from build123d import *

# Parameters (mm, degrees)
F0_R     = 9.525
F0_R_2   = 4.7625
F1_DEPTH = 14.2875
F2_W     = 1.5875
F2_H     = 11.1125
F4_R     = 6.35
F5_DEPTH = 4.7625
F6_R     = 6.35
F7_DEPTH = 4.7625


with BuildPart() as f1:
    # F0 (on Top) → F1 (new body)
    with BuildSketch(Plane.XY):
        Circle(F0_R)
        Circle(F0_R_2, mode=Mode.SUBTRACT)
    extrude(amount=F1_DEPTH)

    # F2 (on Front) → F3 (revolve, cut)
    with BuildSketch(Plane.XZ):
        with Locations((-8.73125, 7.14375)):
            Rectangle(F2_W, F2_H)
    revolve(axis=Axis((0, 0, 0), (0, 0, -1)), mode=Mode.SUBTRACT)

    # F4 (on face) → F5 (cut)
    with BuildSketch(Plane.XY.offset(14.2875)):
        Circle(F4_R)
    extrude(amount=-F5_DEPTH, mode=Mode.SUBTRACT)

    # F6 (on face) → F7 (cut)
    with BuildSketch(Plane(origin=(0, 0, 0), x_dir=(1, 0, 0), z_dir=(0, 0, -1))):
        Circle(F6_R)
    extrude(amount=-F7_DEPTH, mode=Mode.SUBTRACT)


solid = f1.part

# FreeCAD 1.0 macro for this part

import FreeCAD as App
import Part
import Sketcher
from FreeCAD import Vector
Q = App.Units.Quantity

doc = App.newDocument("Part")
body = doc.addObject("PartDesign::Body", "Body")

sketch1 = body.newObject("Sketcher::SketchObject", "Sketch")
sketch1.AttachmentSupport = (doc.getObject("XY_Plane"), [""])
sketch1.MapMode = "FlatFace"
sketch1.addGeometry([
    Part.Circle(Vector(0, 0, 0), Vector(0, 0, 1), 9.5),
    Part.Circle(Vector(0, 0, 0), Vector(0, 0, 1), 4.8),
], False)
sketch1.addConstraint([
    Sketcher.Constraint("Coincident", 0, 3, -1, 1),
    Sketcher.Constraint("Coincident", 1, 3, -1, 1),
    Sketcher.Constraint("Diameter", 0, Q("0.75 in")),
    Sketcher.Constraint("Diameter", 1, Q("0.375 in")),
])
pad1 = body.newObject("PartDesign::Pad", "Pad")
pad1.Profile = sketch1
pad1.Length = Q("0.5625 in")

sketch2 = body.newObject("Sketcher::SketchObject", "Sketch001")
sketch2.AttachmentSupport = (doc.getObject("XZ_Plane"), [""])
sketch2.MapMode = "FlatFace"
sketch2.addGeometry([
    Part.LineSegment(Vector(-9.5, 12.7, 0), Vector(-9.5, 1.6, 0)),
    Part.LineSegment(Vector(-9.5, 1.6, 0), Vector(-7.9, 1.6, 0)),
    Part.LineSegment(Vector(-7.9, 1.6, 0), Vector(-7.9, 12.7, 0)),
    Part.LineSegment(Vector(-7.9, 12.7, 0), Vector(-9.5, 12.7, 0)),
], False)
sketch2.addConstraint([
    Sketcher.Constraint("Coincident", 0, 2, 1, 1),
    Sketcher.Constraint("Coincident", 1, 2, 2, 1),
    Sketcher.Constraint("Coincident", 2, 2, 3, 1),
    Sketcher.Constraint("Coincident", 3, 2, 0, 1),
    Sketcher.Constraint("Vertical", 0),
    Sketcher.Constraint("Horizontal", 1),
    Sketcher.Constraint("Vertical", 2),
    Sketcher.Constraint("Horizontal", 3),
    Sketcher.Constraint("DistanceY", -1, 1, 2, 2, Q("0.5 in")),
    Sketcher.Constraint("DistanceX", 1, 1, 1, 2, Q("0.0625 in")),
    Sketcher.Constraint("DistanceY", 0, 2, 0, 1, Q("0.4375 in")),
    Sketcher.Constraint("DistanceX", 0, 2, -1, 1, Q("0.375 in")),
])
groove = body.newObject("PartDesign::Groove", "Groove")
groove.Profile = sketch2
groove.ReferenceAxis = (sketch2, ["V_Axis"])
groove.Angle = 360

sketch3 = body.newObject("Sketcher::SketchObject", "Sketch002")
sketch3.AttachmentSupport = (doc.getObject("XY_Plane"), [""])
sketch3.MapMode = "FlatFace"
sketch3.AttachmentOffset = App.Placement(Vector(0, 0, 0.5625 * 25.4), App.Rotation())
sketch3.addGeometry(Part.Circle(Vector(0, 0, 0), Vector(0, 0, 1), 6), False)
sketch3.addConstraint([
    Sketcher.Constraint("Coincident", 0, 3, -1, 1),
    Sketcher.Constraint("Diameter", 0, Q("0.5 in")),
])
pocket1 = body.newObject("PartDesign::Pocket", "Pocket")
pocket1.Profile = sketch3
pocket1.Length = Q("0.1875 in")

sketch4 = body.newObject("Sketcher::SketchObject", "Sketch003")
sketch4.AttachmentSupport = (doc.getObject("XY_Plane"), [""])
sketch4.MapMode = "FlatFace"
sketch4.addGeometry(Part.Circle(Vector(0, 0, 0), Vector(0, 0, 1), 6), False)
sketch4.addConstraint([
    Sketcher.Constraint("Coincident", 0, 3, -1, 1),
    Sketcher.Constraint("Diameter", 0, Q("0.5 in")),
])
pocket2 = body.newObject("PartDesign::Pocket", "Pocket001")
pocket2.Profile = sketch4
pocket2.Length = Q("0.1875 in")
pocket2.Reversed = True

doc.recompute()
